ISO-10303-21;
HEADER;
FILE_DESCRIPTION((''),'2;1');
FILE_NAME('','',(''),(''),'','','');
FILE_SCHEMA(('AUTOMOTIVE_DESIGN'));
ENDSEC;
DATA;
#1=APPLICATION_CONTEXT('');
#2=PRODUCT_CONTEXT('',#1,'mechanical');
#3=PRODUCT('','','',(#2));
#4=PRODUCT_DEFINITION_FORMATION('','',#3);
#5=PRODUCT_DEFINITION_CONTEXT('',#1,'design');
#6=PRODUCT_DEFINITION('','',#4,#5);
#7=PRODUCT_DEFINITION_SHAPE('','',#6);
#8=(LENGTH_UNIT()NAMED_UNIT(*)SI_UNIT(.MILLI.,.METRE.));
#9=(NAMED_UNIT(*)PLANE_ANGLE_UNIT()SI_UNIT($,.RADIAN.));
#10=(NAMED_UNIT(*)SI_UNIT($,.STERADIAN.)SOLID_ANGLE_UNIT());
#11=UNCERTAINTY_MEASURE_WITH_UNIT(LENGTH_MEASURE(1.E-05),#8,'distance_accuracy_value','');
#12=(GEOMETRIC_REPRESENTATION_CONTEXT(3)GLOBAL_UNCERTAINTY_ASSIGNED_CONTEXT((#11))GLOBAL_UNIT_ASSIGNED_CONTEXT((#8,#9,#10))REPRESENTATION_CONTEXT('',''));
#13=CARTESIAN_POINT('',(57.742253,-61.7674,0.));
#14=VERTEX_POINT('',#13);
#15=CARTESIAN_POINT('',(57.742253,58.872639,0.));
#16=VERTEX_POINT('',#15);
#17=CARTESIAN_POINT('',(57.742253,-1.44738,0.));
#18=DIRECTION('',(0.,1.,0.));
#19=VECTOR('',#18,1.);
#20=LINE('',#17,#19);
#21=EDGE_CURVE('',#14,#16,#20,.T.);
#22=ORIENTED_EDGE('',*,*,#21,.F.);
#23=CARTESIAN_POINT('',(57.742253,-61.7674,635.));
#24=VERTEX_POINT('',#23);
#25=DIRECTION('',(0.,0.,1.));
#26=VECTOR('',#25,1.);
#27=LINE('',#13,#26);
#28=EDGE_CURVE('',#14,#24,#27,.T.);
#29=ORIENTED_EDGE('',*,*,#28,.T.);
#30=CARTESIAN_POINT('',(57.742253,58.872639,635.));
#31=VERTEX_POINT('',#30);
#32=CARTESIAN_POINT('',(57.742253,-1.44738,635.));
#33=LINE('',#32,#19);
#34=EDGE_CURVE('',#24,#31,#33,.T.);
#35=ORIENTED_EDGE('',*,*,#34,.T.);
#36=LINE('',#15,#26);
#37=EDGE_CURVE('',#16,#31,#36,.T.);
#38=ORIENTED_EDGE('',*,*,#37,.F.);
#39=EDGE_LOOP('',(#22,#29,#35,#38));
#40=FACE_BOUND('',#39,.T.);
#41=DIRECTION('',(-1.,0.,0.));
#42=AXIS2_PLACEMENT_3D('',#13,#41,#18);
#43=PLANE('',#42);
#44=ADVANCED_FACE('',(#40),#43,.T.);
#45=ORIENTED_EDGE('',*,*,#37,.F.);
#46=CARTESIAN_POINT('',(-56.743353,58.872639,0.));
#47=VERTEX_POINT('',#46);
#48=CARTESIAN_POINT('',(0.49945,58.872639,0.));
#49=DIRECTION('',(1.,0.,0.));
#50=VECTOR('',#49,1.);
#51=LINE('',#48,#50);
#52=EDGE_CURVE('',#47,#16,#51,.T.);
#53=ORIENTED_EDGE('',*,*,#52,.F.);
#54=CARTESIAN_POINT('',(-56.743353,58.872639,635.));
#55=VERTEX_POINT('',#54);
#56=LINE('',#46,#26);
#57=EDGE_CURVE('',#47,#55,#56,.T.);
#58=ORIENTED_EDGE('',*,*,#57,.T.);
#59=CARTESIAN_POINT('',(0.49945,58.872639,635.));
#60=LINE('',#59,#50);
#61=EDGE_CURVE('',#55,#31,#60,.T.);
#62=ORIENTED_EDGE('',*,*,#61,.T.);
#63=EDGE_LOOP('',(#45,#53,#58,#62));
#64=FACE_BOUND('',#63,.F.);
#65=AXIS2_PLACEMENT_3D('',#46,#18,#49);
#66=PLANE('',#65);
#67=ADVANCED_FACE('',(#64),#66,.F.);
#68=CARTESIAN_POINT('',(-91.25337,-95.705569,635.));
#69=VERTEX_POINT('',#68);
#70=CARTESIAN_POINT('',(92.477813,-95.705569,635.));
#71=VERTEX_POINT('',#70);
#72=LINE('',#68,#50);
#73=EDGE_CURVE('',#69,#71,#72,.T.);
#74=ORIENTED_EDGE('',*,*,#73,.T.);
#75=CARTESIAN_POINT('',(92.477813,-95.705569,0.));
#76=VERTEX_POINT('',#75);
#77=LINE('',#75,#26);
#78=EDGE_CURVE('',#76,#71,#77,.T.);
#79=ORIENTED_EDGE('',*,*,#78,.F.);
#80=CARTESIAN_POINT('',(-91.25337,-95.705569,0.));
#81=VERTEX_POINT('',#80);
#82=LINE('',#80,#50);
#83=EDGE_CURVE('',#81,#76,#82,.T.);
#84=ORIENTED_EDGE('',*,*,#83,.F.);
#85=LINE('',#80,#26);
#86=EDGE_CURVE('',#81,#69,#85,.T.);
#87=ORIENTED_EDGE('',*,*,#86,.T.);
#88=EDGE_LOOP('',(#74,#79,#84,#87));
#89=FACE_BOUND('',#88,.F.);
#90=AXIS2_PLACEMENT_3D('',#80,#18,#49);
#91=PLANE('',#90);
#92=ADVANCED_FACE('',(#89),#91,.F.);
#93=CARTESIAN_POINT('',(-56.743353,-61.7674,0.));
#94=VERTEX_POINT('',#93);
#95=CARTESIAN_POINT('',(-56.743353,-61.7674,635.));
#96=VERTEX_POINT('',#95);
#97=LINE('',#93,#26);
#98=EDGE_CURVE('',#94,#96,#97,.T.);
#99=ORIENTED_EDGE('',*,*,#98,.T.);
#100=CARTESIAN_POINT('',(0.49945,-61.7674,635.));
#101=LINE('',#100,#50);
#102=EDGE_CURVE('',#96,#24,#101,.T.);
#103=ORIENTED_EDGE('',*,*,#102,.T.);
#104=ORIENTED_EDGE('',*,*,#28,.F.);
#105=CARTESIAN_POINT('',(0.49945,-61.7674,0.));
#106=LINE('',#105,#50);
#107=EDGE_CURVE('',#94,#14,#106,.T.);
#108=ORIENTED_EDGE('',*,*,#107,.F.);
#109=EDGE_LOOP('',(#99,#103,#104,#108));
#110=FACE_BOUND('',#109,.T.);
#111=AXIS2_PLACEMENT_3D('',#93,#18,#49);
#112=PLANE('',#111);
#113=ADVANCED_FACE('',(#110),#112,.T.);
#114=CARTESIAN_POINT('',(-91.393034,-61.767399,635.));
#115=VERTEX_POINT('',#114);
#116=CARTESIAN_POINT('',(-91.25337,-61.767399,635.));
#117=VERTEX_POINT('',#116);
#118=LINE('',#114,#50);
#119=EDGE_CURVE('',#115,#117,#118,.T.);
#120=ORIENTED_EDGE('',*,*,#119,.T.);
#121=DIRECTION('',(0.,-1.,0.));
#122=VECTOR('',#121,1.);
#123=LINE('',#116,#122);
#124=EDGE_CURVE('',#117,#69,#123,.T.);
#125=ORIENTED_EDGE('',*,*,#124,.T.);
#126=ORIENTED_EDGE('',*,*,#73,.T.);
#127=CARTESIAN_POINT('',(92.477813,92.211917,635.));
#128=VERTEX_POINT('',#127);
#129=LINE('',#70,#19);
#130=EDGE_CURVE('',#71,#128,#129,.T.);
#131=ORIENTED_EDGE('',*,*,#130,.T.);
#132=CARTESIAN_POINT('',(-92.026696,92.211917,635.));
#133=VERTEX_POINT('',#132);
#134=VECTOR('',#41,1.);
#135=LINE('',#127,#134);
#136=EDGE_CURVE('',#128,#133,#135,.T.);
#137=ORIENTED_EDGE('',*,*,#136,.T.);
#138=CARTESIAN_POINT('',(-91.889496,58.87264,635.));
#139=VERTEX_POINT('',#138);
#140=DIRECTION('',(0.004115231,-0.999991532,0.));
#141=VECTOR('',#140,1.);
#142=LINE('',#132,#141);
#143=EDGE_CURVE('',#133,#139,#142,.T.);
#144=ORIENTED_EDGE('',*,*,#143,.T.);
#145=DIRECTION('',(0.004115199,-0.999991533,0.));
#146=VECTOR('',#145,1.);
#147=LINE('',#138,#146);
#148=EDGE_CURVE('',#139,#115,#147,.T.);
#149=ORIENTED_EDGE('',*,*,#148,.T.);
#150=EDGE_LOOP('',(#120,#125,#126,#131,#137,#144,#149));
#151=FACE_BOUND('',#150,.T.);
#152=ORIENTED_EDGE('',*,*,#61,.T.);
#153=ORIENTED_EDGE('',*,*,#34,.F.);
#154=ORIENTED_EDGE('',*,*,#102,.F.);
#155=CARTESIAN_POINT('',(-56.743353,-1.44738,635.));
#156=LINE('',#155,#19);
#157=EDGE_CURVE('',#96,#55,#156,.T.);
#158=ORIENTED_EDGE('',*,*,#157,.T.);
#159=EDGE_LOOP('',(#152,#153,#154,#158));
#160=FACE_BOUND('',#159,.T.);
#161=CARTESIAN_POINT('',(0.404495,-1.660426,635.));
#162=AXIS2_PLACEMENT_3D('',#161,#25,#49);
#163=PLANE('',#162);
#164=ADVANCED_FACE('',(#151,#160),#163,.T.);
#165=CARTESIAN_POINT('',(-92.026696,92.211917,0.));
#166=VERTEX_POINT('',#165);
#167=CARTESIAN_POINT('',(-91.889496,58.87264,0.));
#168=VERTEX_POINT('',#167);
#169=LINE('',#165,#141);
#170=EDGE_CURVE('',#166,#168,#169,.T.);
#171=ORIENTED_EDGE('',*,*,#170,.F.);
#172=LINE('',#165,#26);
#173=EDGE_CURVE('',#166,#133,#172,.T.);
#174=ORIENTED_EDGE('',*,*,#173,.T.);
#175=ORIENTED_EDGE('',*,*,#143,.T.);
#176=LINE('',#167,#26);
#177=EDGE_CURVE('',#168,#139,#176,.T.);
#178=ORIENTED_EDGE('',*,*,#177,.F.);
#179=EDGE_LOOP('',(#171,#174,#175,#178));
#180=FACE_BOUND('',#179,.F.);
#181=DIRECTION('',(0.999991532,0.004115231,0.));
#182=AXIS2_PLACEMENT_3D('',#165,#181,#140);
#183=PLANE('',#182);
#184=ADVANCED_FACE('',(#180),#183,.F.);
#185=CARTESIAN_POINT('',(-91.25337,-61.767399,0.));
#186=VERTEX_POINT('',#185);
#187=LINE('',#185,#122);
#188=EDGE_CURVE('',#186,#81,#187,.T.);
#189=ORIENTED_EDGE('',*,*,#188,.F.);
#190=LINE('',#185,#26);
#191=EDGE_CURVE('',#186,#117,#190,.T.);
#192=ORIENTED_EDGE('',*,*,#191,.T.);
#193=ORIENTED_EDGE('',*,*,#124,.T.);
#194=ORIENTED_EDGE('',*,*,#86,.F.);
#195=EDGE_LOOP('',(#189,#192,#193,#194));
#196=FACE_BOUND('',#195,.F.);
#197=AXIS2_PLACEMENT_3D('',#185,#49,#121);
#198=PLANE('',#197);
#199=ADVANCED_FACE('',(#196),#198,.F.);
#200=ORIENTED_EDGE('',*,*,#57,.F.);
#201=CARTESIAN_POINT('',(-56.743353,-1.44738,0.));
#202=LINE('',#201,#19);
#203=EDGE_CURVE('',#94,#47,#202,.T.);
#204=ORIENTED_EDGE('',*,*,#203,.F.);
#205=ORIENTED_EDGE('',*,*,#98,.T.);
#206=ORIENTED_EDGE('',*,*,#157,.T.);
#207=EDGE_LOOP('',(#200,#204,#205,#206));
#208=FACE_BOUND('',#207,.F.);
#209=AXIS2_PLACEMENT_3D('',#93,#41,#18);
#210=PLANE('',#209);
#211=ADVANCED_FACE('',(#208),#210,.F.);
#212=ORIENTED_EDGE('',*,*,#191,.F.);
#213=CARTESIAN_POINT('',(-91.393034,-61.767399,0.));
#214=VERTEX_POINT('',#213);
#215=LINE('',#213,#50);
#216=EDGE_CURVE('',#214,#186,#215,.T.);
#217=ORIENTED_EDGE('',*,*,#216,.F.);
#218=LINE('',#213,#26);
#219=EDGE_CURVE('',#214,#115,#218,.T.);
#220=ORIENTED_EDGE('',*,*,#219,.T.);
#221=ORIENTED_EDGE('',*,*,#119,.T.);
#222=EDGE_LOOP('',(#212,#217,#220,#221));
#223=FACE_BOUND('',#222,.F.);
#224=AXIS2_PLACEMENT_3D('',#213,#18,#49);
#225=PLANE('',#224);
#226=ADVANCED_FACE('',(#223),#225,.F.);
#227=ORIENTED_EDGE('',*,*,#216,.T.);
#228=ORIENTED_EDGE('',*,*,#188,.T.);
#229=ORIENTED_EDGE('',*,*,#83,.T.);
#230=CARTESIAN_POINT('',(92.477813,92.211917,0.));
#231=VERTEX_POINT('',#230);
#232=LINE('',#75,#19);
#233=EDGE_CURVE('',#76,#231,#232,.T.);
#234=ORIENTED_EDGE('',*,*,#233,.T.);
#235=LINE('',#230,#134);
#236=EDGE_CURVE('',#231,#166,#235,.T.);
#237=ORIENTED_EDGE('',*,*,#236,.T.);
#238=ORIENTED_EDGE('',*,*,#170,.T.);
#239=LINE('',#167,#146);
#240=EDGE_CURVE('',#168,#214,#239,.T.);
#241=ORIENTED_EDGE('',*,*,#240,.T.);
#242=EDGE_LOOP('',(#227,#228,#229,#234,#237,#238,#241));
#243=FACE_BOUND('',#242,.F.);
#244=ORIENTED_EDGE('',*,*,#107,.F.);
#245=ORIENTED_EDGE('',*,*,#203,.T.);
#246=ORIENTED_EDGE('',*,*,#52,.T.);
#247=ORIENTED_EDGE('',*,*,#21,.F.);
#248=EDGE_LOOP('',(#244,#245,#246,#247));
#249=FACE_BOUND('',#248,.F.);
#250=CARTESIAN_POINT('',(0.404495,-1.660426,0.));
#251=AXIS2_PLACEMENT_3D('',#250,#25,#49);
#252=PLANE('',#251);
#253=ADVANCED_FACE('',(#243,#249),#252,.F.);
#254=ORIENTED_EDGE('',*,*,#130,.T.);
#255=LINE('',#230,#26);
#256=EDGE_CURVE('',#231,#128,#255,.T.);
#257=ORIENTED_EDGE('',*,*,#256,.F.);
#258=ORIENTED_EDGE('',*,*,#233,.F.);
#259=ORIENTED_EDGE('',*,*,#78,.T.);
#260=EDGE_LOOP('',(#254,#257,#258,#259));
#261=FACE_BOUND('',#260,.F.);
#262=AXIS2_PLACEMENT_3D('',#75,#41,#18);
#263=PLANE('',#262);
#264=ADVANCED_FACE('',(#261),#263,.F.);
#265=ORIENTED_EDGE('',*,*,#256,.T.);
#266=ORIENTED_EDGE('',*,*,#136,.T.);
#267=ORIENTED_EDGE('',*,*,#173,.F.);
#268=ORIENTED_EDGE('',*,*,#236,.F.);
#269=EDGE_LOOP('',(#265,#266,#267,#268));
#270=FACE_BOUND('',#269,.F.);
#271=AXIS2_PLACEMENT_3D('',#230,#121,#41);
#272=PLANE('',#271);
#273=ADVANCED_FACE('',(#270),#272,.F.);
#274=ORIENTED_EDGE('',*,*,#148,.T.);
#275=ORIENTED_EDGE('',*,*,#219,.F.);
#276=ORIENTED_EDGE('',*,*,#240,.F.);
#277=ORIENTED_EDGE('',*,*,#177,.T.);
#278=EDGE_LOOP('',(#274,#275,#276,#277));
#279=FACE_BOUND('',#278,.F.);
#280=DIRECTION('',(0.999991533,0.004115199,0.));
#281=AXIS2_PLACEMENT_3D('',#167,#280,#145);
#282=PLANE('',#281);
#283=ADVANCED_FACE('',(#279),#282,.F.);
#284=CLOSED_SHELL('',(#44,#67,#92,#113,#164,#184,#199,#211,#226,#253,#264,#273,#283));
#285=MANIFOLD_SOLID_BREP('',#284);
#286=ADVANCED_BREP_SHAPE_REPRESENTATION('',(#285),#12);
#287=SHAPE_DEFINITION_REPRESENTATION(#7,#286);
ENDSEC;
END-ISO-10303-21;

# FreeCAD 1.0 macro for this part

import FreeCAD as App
import Part
import Sketcher
Q = App.Units.Quantity


def add_polygon(sketch, points):
    """Adds a closed chain of lines whose ends are joined by coincident constraints."""
    first, n = sketch.GeometryCount, len(points)
    for a, b in zip(points, points[1:] + points[:1]):
        sketch.addGeometry(Part.LineSegment(App.Vector(*a, 0), App.Vector(*b, 0)), False)
    for i in range(n):
        sketch.addConstraint(Sketcher.Constraint("Coincident", first + i, 2, first + (i + 1) % n, 1))

doc = App.newDocument("Part")
body = doc.addObject("PartDesign::Body", "Body")

sketch1 = doc.addObject("Sketcher::SketchObject", "Sketch")
body.addObject(sketch1)
sketch1.AttachmentSupport = (doc.XY_Plane, [""])
sketch1.MapMode = "FlatFace"
add_polygon(sketch1, [(-92.03, 92.21), (-91.89, 58.87), (-91.39, -61.77), (-91.25, -61.77), (-91.25, -95.71), (92.48, -95.71), (92.48, 92.21)])
add_polygon(sketch1, [(57.74, -61.77), (-56.74, -61.77), (-56.74, 58.87), (57.74, 58.87)])
sketch1.addConstraint([
    Sketcher.Constraint("Horizontal", 2),
    Sketcher.Constraint("Vertical", 3),
    Sketcher.Constraint("Horizontal", 4),
    Sketcher.Constraint("Vertical", 5),
    Sketcher.Constraint("Horizontal", 6),
    Sketcher.Constraint("Horizontal", 7),
    Sketcher.Constraint("Vertical", 8),
    Sketcher.Constraint("Horizontal", 9),
    Sketcher.Constraint("Vertical", 10),
    Sketcher.Constraint("Parallel", 0, 1),
    Sketcher.Constraint("Horizontal", 2, 2, 7, 2),
    Sketcher.Constraint("Horizontal", 0, 2, 8, 2),
    Sketcher.Constraint("DistanceX", 6, 2, 6, 1, 184.504509),
    Sketcher.Constraint("DistanceY", 3, 2, 3, 1, 33.93817),
    Sketcher.Constraint("DistanceY", 8, 1, 8, 2, 120.640039),
    Sketcher.Constraint("DistanceY", 1, 2, -1, 1, 61.767399),
    Sketcher.Constraint("DistanceX", 6, 2, 0, 2, 0.1372),
    Sketcher.Constraint("Distance", 0, 33.339559),
    Sketcher.Constraint("DistanceX", 2, 1, 2, 2, 0.139664),
    Sketcher.Constraint("DistanceX", 7, 2, 7, 1, 114.485607),
    Sketcher.Constraint("DistanceX", 2, 2, -1, 1, 91.25337),
    Sketcher.Constraint("DistanceX", 1, 2, 7, 2, 34.649681),
])
pad1 = doc.addObject("PartDesign::Pad", "Pad")
body.addObject(pad1)
pad1.Profile = sketch1
pad1.Length = Q("25 in")

doc.recompute()
